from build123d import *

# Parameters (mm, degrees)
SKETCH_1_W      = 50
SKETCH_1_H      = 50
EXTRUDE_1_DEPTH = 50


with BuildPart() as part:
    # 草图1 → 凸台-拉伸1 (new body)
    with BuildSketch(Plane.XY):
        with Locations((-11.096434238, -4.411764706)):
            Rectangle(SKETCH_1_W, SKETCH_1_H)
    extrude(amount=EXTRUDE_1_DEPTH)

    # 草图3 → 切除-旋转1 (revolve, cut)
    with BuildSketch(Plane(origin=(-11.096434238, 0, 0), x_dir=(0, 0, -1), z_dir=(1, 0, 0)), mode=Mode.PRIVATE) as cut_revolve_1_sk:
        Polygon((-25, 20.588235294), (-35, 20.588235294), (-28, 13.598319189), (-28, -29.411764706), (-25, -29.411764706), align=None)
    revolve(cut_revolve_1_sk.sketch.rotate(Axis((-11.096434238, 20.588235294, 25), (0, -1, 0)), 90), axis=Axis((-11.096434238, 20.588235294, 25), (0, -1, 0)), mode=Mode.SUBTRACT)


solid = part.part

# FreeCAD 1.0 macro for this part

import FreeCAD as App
import Part
import Sketcher

doc = App.newDocument("Part")
body = doc.addObject("PartDesign::Body", "Body")

sketch1 = body.newObject("Sketcher::SketchObject", "Sketch")
sketch1.AttachmentSupport = (doc.getObject("XY_Plane"), [""])
sketch1.MapMode = "FlatFace"
sketch1.addGeometry([
    Part.LineSegment(App.Vector(-36, 21, 0), App.Vector(-36, -29, 0)),
    Part.LineSegment(App.Vector(-36, -29, 0), App.Vector(14, -29, 0)),
    Part.LineSegment(App.Vector(14, -29, 0), App.Vector(14, 21, 0)),
    Part.LineSegment(App.Vector(14, 21, 0), App.Vector(-36, 21, 0)),
], False)
sketch1.addConstraint([
    Sketcher.Constraint("Coincident", 0, 2, 1, 1),
    Sketcher.Constraint("Coincident", 1, 2, 2, 1),
    Sketcher.Constraint("Coincident", 2, 2, 3, 1),
    Sketcher.Constraint("Coincident", 3, 2, 0, 1),
    Sketcher.Constraint("Vertical", 0),
    Sketcher.Constraint("Horizontal", 1),
    Sketcher.Constraint("Vertical", 2),
    Sketcher.Constraint("Horizontal", 3),
    Sketcher.Constraint("Equal", 3, 0),
    Sketcher.Constraint("DistanceX", 1, 1, 1, 2, 50.0),
    Sketcher.Constraint("DistanceX", 0, 2, -1, 1, 36.096434),
    Sketcher.Constraint("DistanceY", 0, 2, -1, 1, 29.411765),
])
pad1 = body.newObject("PartDesign::Pad", "Pad")
pad1.Profile = sketch1
pad1.Length = 50

sketch2 = body.newObject("Sketcher::SketchObject", "Sketch001")
sketch2.AttachmentSupport = (doc.getObject("YZ_Plane"), [""])
sketch2.MapMode = "FlatFace"
sketch2.AttachmentOffset = App.Placement(App.Vector(0, 0, -11.096434), App.Rotation())
sketch2.addGeometry([
    Part.LineSegment(App.Vector(20.6, 25, 0), App.Vector(20.6, 35, 0)),
    Part.LineSegment(App.Vector(20.6, 35, 0), App.Vector(13.6, 28, 0)),
    Part.LineSegment(App.Vector(13.6, 28, 0), App.Vector(-29.4, 28, 0)),
    Part.LineSegment(App.Vector(-29.4, 28, 0), App.Vector(-29.4, 25, 0)),
    Part.LineSegment(App.Vector(-29.4, 25, 0), App.Vector(20.6, 25, 0)),
], False)
sketch2.addGeometry(Part.LineSegment(App.Vector(20.6, 25, 0), App.Vector(-29.4, 25, 0)), True)
sketch2.addConstraint([
    Sketcher.Constraint("Coincident", 0, 2, 1, 1),
    Sketcher.Constraint("Coincident", 1, 2, 2, 1),
    Sketcher.Constraint("Coincident", 2, 2, 3, 1),
    Sketcher.Constraint("Coincident", 3, 2, 4, 1),
    Sketcher.Constraint("Coincident", 4, 2, 0, 1),
    Sketcher.Constraint("Vertical", 0),
    Sketcher.Constraint("Horizontal", 2),
    Sketcher.Constraint("Vertical", 3),
    Sketcher.Constraint("Horizontal", 4),
    Sketcher.Constraint("Horizontal", 5),
    Sketcher.Constraint("Coincident", 5, 1, 4, 2),
    Sketcher.Constraint("Vertical", 2, 2, 5, 2),
    Sketcher.Constraint("DistanceX", 4, 1, 4, 2, 50.0),
    Sketcher.Constraint("DistanceY", 0, 1, 0, 2, 10.0),
    Sketcher.Constraint("DistanceY", 3, 2, 3, 1, 3.0),
    Sketcher.Constraint("DistanceY", -1, 1, 0, 2, 35.0),
    Sketcher.Constraint("DistanceX", 2, 2, 2, 1, 43.010084),
    Sketcher.Constraint("DistanceX", -1, 1, 1, 2, 13.598319),
])
groove = body.newObject("PartDesign::Groove", "Groove")
groove.Profile = sketch2
groove.ReferenceAxis = (sketch2, ["Axis0"])
groove.Angle = 360

doc.recompute()
